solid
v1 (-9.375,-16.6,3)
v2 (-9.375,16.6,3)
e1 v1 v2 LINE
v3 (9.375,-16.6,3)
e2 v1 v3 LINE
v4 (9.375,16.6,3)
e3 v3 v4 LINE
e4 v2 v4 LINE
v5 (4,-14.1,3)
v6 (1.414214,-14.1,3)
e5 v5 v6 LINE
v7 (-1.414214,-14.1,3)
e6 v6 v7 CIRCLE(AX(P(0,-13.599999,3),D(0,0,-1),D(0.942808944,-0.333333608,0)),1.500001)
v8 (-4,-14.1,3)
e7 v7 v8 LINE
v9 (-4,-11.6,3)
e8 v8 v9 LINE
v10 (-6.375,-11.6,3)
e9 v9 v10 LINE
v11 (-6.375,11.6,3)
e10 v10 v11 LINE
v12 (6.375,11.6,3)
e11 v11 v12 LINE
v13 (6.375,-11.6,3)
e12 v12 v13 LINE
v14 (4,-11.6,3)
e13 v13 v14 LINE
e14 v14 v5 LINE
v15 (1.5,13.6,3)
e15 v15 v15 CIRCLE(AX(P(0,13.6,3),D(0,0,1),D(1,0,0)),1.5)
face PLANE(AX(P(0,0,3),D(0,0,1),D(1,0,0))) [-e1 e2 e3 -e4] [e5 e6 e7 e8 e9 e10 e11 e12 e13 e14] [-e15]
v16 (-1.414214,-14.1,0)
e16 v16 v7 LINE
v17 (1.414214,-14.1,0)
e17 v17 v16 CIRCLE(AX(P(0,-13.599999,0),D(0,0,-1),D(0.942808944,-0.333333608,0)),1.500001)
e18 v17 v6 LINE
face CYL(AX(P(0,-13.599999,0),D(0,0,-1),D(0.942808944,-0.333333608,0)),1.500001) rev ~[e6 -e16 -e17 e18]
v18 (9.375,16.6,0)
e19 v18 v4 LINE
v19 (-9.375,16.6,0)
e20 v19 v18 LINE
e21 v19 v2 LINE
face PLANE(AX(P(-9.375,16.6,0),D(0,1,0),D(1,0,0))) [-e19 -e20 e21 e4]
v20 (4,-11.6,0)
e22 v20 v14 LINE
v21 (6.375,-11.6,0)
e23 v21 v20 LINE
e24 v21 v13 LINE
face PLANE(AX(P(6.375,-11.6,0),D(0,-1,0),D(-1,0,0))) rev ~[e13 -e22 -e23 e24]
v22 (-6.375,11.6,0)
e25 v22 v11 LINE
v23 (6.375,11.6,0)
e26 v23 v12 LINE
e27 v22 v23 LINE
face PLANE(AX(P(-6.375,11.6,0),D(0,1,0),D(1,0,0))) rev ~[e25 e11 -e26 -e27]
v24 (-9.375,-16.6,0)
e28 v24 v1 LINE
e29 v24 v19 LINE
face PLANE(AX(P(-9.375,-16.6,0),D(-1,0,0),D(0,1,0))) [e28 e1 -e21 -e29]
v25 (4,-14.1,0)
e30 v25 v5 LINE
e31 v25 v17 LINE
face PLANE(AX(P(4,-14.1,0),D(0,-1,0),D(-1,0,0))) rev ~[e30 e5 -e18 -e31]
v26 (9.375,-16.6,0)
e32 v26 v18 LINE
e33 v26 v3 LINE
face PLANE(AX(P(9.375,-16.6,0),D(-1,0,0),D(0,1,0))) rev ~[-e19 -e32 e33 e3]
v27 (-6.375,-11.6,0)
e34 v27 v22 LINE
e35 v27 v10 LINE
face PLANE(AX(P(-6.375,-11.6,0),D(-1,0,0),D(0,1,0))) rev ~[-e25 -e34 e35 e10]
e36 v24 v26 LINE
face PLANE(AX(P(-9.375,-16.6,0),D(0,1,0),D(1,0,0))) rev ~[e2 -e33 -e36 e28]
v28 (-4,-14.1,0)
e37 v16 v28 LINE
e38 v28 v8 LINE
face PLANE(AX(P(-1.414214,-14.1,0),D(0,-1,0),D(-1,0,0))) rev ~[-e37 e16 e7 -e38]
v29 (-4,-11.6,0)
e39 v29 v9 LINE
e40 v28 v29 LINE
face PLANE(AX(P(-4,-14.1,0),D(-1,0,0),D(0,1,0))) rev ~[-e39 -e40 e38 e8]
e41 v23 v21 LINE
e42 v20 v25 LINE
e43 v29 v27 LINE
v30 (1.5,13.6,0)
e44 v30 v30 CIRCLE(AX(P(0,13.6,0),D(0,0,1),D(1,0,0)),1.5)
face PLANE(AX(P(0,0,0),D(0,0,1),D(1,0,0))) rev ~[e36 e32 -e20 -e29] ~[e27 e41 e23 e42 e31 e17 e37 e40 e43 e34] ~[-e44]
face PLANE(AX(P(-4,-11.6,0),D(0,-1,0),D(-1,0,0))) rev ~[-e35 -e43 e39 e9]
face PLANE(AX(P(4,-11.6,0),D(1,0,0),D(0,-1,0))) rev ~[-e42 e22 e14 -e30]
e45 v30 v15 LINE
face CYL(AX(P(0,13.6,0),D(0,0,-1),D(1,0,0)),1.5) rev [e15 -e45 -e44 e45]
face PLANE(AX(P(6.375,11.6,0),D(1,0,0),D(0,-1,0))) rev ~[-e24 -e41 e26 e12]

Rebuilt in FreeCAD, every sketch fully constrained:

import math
import FreeCAD as App
import Part
import Sketcher
Q = App.Units.Quantity


def add_polygon(sketch, points):
    """Adds a closed chain of lines whose ends are joined by coincident constraints."""
    first, n = sketch.GeometryCount, len(points)
    for a, b in zip(points, points[1:] + points[:1]):
        sketch.addGeometry(Part.LineSegment(App.Vector(*a, 0), App.Vector(*b, 0)), False)
    for i in range(n):
        sketch.addConstraint(Sketcher.Constraint("Coincident", first + i, 2, first + (i + 1) % n, 1))

doc = App.newDocument("Part")
body = doc.addObject("PartDesign::Body", "Body")

# Sketch on XY plane
sketch1 = body.newObject("Sketcher::SketchObject", "Sketch")
sketch1.AttachmentSupport = (doc.getObject("XY_Plane"), [""])
sketch1.MapMode = "FlatFace"
add_polygon(sketch1, [(-9.4, 16.6), (-9.4, -16.6), (9.4, -16.6), (9.4, 16.6)])  # lines 0-3
sketch1.addGeometry(Part.LineSegment(App.Vector(-4, -11.6, 0), App.Vector(-6.4, -11.6, 0)), False)  # 4
sketch1.addGeometry(Part.LineSegment(App.Vector(-6.4, -11.6, 0), App.Vector(-6.4, 11.6, 0)), False)  # 5
sketch1.addGeometry(Part.LineSegment(App.Vector(-6.4, 11.6, 0), App.Vector(6.4, 11.6, 0)), False)  # 6
sketch1.addGeometry(Part.LineSegment(App.Vector(6.4, 11.6, 0), App.Vector(6.4, -11.6, 0)), False)  # 7
sketch1.addGeometry(Part.LineSegment(App.Vector(6.4, -11.6, 0), App.Vector(4, -11.6, 0)), False)  # 8
sketch1.addGeometry(Part.LineSegment(App.Vector(4, -11.6, 0), App.Vector(4, -14.1, 0)), False)  # 9
sketch1.addGeometry(Part.LineSegment(App.Vector(4, -14.1, 0), App.Vector(1.4, -14.1, 0)), False)  # 10
sketch1.addGeometry(Part.ArcOfCircle(Part.Circle(App.Vector(0, -13.6, 0), App.Vector(0, 0, 1), 1.5), math.radians(-161), math.radians(-19)), False)  # 11
sketch1.addGeometry(Part.LineSegment(App.Vector(-1.4, -14.1, 0), App.Vector(-4, -14.1, 0)), False)  # 12
sketch1.addGeometry(Part.LineSegment(App.Vector(-4, -14.1, 0), App.Vector(-4, -11.6, 0)), False)  # 13
sketch1.addGeometry(Part.Circle(App.Vector(0, 13.6, 0), App.Vector(0, 0, 1), 1.5), False)  # 14
sketch1.addConstraint([
    Sketcher.Constraint("Coincident", 4, 2, 5, 1),
    Sketcher.Constraint("Coincident", 5, 2, 6, 1),
    Sketcher.Constraint("Coincident", 6, 2, 7, 1),
    Sketcher.Constraint("Coincident", 7, 2, 8, 1),
    Sketcher.Constraint("Coincident", 8, 2, 9, 1),
    Sketcher.Constraint("Coincident", 9, 2, 10, 1),
    Sketcher.Constraint("Coincident", 10, 2, 11, 2),
    Sketcher.Constraint("Coincident", 11, 1, 12, 1),
    Sketcher.Constraint("Coincident", 12, 2, 13, 1),
    Sketcher.Constraint("Coincident", 13, 2, 4, 1),
    Sketcher.Constraint("Vertical", 0),
    Sketcher.Constraint("Horizontal", 1),
    Sketcher.Constraint("Vertical", 2),
    Sketcher.Constraint("Horizontal", 3),
    Sketcher.Constraint("Horizontal", 4),
    Sketcher.Constraint("Vertical", 5),
    Sketcher.Constraint("Horizontal", 6),
    Sketcher.Constraint("Vertical", 7),
    Sketcher.Constraint("Horizontal", 8),
    Sketcher.Constraint("Vertical", 9),
    Sketcher.Constraint("Horizontal", 10),
    Sketcher.Constraint("Horizontal", 12),
    Sketcher.Constraint("Vertical", 13),
    Sketcher.Constraint("Equal", 11, 14),
    Sketcher.Constraint("Symmetric", 11, 3, 14, 3, -1, 1),
    Sketcher.Constraint("Symmetric", 0, 2, 2, 2, -1, 1),
    Sketcher.Constraint("Symmetric", 4, 2, 6, 2, -1, 1),
    Sketcher.Constraint("Symmetric", 10, 2, 11, 1, -2),
    Sketcher.Constraint("Symmetric", 8, 2, 13, 2, -2),
    Sketcher.Constraint("Diameter", 14, Q("3 mm")),
    Sketcher.Constraint("DistanceY", 0, 2, 0, 1, Q("33.2 mm")),
    Sketcher.Constraint("DistanceY", 5, 1, 5, 2, Q("23.2 mm")),
    Sketcher.Constraint("DistanceY", 9, 2, 9, 1, Q("2.5 mm")),
    Sketcher.Constraint("DistanceX", -1, 1, 8, 2, Q("4 mm")),
    Sketcher.Constraint("DistanceY", 0, 2, 11, 3, Q("3.000001 mm")),
    Sketcher.Constraint("DistanceX", 0, 2, 4, 2, Q("3 mm")),
    Sketcher.Constraint("DistanceX", 1, 1, 1, 2, Q("18.75 mm")),
])
pad1 = body.newObject("PartDesign::Pad", "Pad")
pad1.Profile = sketch1
pad1.Length = 3

doc.recompute()
